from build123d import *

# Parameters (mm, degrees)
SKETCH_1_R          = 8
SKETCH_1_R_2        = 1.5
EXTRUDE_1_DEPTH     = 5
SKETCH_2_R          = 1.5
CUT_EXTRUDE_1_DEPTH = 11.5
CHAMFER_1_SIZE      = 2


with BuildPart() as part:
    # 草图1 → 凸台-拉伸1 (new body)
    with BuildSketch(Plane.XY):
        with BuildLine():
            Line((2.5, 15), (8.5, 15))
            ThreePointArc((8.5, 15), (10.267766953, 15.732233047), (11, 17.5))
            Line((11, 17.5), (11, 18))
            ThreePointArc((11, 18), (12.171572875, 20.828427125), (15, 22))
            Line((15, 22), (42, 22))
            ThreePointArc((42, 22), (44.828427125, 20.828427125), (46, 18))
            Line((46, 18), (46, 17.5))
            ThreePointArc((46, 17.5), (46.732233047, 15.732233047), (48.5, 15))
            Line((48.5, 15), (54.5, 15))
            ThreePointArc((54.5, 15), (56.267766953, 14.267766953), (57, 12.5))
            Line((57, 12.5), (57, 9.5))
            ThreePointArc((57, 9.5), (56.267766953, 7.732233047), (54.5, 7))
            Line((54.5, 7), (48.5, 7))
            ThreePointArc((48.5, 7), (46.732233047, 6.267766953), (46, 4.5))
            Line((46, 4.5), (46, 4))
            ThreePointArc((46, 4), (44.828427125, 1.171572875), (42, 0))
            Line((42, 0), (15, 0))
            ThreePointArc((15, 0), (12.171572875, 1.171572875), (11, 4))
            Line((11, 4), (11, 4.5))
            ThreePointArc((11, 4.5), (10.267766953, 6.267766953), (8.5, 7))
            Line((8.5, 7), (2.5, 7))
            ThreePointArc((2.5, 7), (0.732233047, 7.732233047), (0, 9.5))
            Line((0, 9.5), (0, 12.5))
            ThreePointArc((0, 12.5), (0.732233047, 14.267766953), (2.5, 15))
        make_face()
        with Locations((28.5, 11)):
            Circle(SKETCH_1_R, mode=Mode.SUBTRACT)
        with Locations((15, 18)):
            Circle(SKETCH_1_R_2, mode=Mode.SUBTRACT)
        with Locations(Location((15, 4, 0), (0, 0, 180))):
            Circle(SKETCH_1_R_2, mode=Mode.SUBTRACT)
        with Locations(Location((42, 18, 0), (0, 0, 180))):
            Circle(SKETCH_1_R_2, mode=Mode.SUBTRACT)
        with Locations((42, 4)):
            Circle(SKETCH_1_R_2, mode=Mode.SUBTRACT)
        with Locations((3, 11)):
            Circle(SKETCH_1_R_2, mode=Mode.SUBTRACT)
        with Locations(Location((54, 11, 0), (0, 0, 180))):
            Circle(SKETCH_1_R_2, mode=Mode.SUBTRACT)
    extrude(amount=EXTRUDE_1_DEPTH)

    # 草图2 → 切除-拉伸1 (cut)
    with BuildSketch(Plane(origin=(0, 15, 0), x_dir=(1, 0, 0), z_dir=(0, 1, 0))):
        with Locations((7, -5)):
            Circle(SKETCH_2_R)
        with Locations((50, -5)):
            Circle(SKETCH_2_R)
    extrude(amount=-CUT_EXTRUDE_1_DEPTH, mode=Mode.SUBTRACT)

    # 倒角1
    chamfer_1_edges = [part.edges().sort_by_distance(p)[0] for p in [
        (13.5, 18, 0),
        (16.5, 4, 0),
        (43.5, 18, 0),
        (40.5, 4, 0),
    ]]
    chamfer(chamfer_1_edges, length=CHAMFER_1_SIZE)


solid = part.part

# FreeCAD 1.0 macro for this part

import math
import FreeCAD as App
import Part
import Sketcher
Q = App.Units.Quantity


def edges_at(feature, points):
    """Names of the edges that pass closest to the given points."""
    edges = feature.Shape.Edges
    near = lambda p: min(range(len(edges)), key=lambda i: edges[i].distToShape(Part.Vertex(*p))[0])
    return sorted({f"Edge{near(p) + 1}" for p in points})

doc = App.newDocument("Part")
params = doc.addObject("Spreadsheet::Sheet", "Params")
for row, (alias, value) in enumerate([
    ("sketch1_diameter", "3 mm"),
    ("sketch1_diameter2", "16 mm"),
    ("sketch1_radius", "4 mm"),
    ("sketch1_radius2", "2.5 mm"),
    ("sketch1_width", "6 mm"),
    ("pad1_length", "5 mm"),
    ("sketch2_diameter", "3 mm"),
    ("pocket1_length", "11.5 mm"),
    ("chamfer_size", "2 mm"),
], start=1):
    params.set(f"A{row}", alias)
    params.set(f"B{row}", "=" + value)
    params.setAlias(f"B{row}", alias)

body = doc.addObject("PartDesign::Body", "Body")

sketch1 = body.newObject("Sketcher::SketchObject", "Sketch")
sketch1.AttachmentSupport = (doc.getObject("XY_Plane"), [""])
sketch1.MapMode = "FlatFace"
sketch1.addGeometry([
    Part.LineSegment(App.Vector(8.5, 15, 0), App.Vector(2.5, 15, 0)),
    Part.ArcOfCircle(Part.Circle(App.Vector(2.5, 12.5, 0), App.Vector(0, 0, 1), 2.5), math.radians(90), math.radians(180)),
    Part.LineSegment(App.Vector(0, 12.5, 0), App.Vector(0, 9.5, 0)),
    Part.ArcOfCircle(Part.Circle(App.Vector(2.5, 9.5, 0), App.Vector(0, 0, 1), 2.5), math.radians(180), math.radians(270)),
    Part.LineSegment(App.Vector(2.5, 7, 0), App.Vector(8.5, 7, 0)),
    Part.ArcOfCircle(Part.Circle(App.Vector(8.5, 4.5, 0), App.Vector(0, 0, 1), 2.5), math.radians(0), math.radians(90)),
    Part.LineSegment(App.Vector(11, 4.5, 0), App.Vector(11, 4, 0)),
    Part.ArcOfCircle(Part.Circle(App.Vector(15, 4, 0), App.Vector(0, 0, 1), 4), math.radians(180), math.radians(270)),
    Part.LineSegment(App.Vector(15, 0, 0), App.Vector(42, 0, 0)),
    Part.ArcOfCircle(Part.Circle(App.Vector(42, 4, 0), App.Vector(0, 0, 1), 4), math.radians(-90), math.radians(0)),
    Part.LineSegment(App.Vector(46, 4, 0), App.Vector(46, 4.5, 0)),
    Part.ArcOfCircle(Part.Circle(App.Vector(48.5, 4.5, 0), App.Vector(0, 0, 1), 2.5), math.radians(90), math.radians(180)),
    Part.LineSegment(App.Vector(48.5, 7, 0), App.Vector(54.5, 7, 0)),
    Part.ArcOfCircle(Part.Circle(App.Vector(54.5, 9.5, 0), App.Vector(0, 0, 1), 2.5), math.radians(-90), math.radians(0)),
    Part.LineSegment(App.Vector(57, 9.5, 0), App.Vector(57, 12.5, 0)),
    Part.ArcOfCircle(Part.Circle(App.Vector(54.5, 12.5, 0), App.Vector(0, 0, 1), 2.5), math.radians(0), math.radians(90)),
    Part.LineSegment(App.Vector(54.5, 15, 0), App.Vector(48.5, 15, 0)),
    Part.ArcOfCircle(Part.Circle(App.Vector(48.5, 17.5, 0), App.Vector(0, 0, 1), 2.5), math.radians(180), math.radians(270)),
    Part.LineSegment(App.Vector(46, 17.5, 0), App.Vector(46, 18, 0)),
    Part.ArcOfCircle(Part.Circle(App.Vector(42, 18, 0), App.Vector(0, 0, 1), 4), math.radians(0), math.radians(90)),
    Part.LineSegment(App.Vector(42, 22, 0), App.Vector(15, 22, 0)),
    Part.ArcOfCircle(Part.Circle(App.Vector(15, 18, 0), App.Vector(0, 0, 1), 4), math.radians(90), math.radians(180)),
    Part.LineSegment(App.Vector(11, 18, 0), App.Vector(11, 17.5, 0)),
    Part.ArcOfCircle(Part.Circle(App.Vector(8.5, 17.5, 0), App.Vector(0, 0, 1), 2.5), math.radians(-90), math.radians(0)),
    Part.Circle(App.Vector(42, 4, 0), App.Vector(0, 0, 1), 1.5),
    Part.Circle(App.Vector(15, 4, 0), App.Vector(0, 0, 1), 1.5),
    Part.Circle(App.Vector(54, 11, 0), App.Vector(0, 0, 1), 1.5),
    Part.Circle(App.Vector(42, 18, 0), App.Vector(0, 0, 1), 1.5),
    Part.Circle(App.Vector(28.5, 11, 0), App.Vector(0, 0, 1), 8),
    Part.Circle(App.Vector(3, 11, 0), App.Vector(0, 0, 1), 1.5),
    Part.Circle(App.Vector(15, 18, 0), App.Vector(0, 0, 1), 1.5),
], False)
sketch1.addConstraint([
    Sketcher.Constraint("Tangent", 0, 2, 1, 1),
    Sketcher.Constraint("Tangent", 1, 2, 2, 1),
    Sketcher.Constraint("Tangent", 2, 2, 3, 1),
    Sketcher.Constraint("Tangent", 3, 2, 4, 1),
    Sketcher.Constraint("Tangent", 4, 2, 5, 2),
    Sketcher.Constraint("Tangent", 5, 1, 6, 1),
    Sketcher.Constraint("Tangent", 6, 2, 7, 1),
    Sketcher.Constraint("Tangent", 7, 2, 8, 1),
    Sketcher.Constraint("Tangent", 8, 2, 9, 1),
    Sketcher.Constraint("Tangent", 9, 2, 10, 1),
    Sketcher.Constraint("Tangent", 10, 2, 11, 2),
    Sketcher.Constraint("Tangent", 11, 1, 12, 1),
    Sketcher.Constraint("Tangent", 12, 2, 13, 1),
    Sketcher.Constraint("Tangent", 13, 2, 14, 1),
    Sketcher.Constraint("Tangent", 14, 2, 15, 1),
    Sketcher.Constraint("Tangent", 15, 2, 16, 1),
    Sketcher.Constraint("Tangent", 16, 2, 17, 2),
    Sketcher.Constraint("Tangent", 17, 1, 18, 1),
    Sketcher.Constraint("Tangent", 18, 2, 19, 1),
    Sketcher.Constraint("Tangent", 19, 2, 20, 1),
    Sketcher.Constraint("Tangent", 20, 2, 21, 1),
    Sketcher.Constraint("Tangent", 21, 2, 22, 1),
    Sketcher.Constraint("Tangent", 22, 2, 23, 2),
    Sketcher.Constraint("Tangent", 23, 1, 0, 1),
    Sketcher.Constraint("Horizontal", 0),
    Sketcher.Constraint("Vertical", 2),
    Sketcher.Constraint("Horizontal", 4),
    Sketcher.Constraint("Vertical", 6),
    Sketcher.Constraint("Horizontal", 8),
    Sketcher.Constraint("Vertical", 10),
    Sketcher.Constraint("Horizontal", 12),
    Sketcher.Constraint("Vertical", 14),
    Sketcher.Constraint("Horizontal", 16),
    Sketcher.Constraint("Vertical", 18),
    Sketcher.Constraint("Horizontal", 20),
    Sketcher.Constraint("Vertical", 22),
    Sketcher.Constraint("Coincident", 24, 3, 9, 3),
    Sketcher.Constraint("Coincident", 25, 3, 7, 3),
    Sketcher.Constraint("Coincident", 27, 3, 19, 3),
    Sketcher.Constraint("Coincident", 30, 3, 21, 3),
    Sketcher.Constraint("Equal", 1, 3),
    Sketcher.Constraint("Equal", 3, 5),
    Sketcher.Constraint("Equal", 7, 9),
    Sketcher.Constraint("Equal", 5, 11),
    Sketcher.Constraint("Equal", 11, 13),
    Sketcher.Constraint("Equal", 13, 15),
    Sketcher.Constraint("Equal", 15, 17),
    Sketcher.Constraint("Equal", 9, 19),
    Sketcher.Constraint("Equal", 19, 21),
    Sketcher.Constraint("Equal", 17, 23),
    Sketcher.Constraint("Equal", 24, 25),
    Sketcher.Constraint("Equal", 25, 26),
    Sketcher.Constraint("Equal", 26, 27),
    Sketcher.Constraint("Equal", 27, 29),
    Sketcher.Constraint("Equal", 29, 30),
    Sketcher.Constraint("PointOnObject", 1, 2, -2),
    Sketcher.Constraint("PointOnObject", 7, 2, -1),
    Sketcher.Constraint("Horizontal", 5, 3, 11, 3),
    Sketcher.Constraint("Horizontal", 1, 3, 15, 3),
    Sketcher.Constraint("Horizontal", 26, 3, 28, 3),
    Sketcher.Constraint("Horizontal", 28, 3, 29, 3),
    Sketcher.Constraint("Vertical", 11, 3, 17, 3),
    Sketcher.Constraint("Vertical", 7, 3, 21, 3),
    Sketcher.Constraint("Equal", 4, 12),
    Sketcher.Constraint("Equal", 10, 18),
    Sketcher.Constraint("Diameter", 24, Q("3 mm")),
    Sketcher.Constraint("Diameter", 28, Q("16 mm")),
    Sketcher.Constraint("Radius", 7, Q("4 mm")),
    Sketcher.Constraint("Radius", 1, Q("2.5 mm")),
    Sketcher.Constraint("DistanceX", 0, 2, 0, 1, Q("6 mm")),
    Sketcher.Constraint("DistanceX", 8, 1, 8, 2, Q("27 mm")),
    Sketcher.Constraint("DistanceY", 2, 2, 2, 1, Q("3 mm")),
    Sketcher.Constraint("DistanceY", 6, 2, 6, 1, Q("0.5 mm")),
    Sketcher.Constraint("DistanceX", -1, 1, 26, 3, Q("54 mm")),
    Sketcher.Constraint("DistanceY", -1, 1, 26, 3, Q("11 mm")),
    Sketcher.Constraint("DistanceX", -1, 1, 29, 3, Q("3 mm")),
    Sketcher.Constraint("DistanceX", -1, 1, 28, 3, Q("28.5 mm")),
])
sketch1.setExpression("Constraints[65]", "Params.sketch1_diameter")
sketch1.setExpression("Constraints[66]", "Params.sketch1_diameter2")
sketch1.setExpression("Constraints[67]", "Params.sketch1_radius")
sketch1.setExpression("Constraints[68]", "Params.sketch1_radius2")
sketch1.setExpression("Constraints[69]", "Params.sketch1_width")
pad1 = body.newObject("PartDesign::Pad", "Pad")
pad1.Profile = sketch1
pad1.setExpression("Length", "Params.pad1_length")

sketch2 = body.newObject("Sketcher::SketchObject", "Sketch001")
sketch2.AttachmentSupport = (doc.getObject("XZ_Plane"), [""])
sketch2.MapMode = "FlatFace"
sketch2.AttachmentOffset = App.Placement(App.Vector(0, 0, -15), App.Rotation())
sketch2.addGeometry([
    Part.Circle(App.Vector(7, 5, 0), App.Vector(0, 0, 1), 1.5),
    Part.Circle(App.Vector(50, 5, 0), App.Vector(0, 0, 1), 1.5),
], False)
sketch2.addConstraint([
    Sketcher.Constraint("Equal", 0, 1),
    Sketcher.Constraint("Horizontal", 0, 3, 1, 3),
    Sketcher.Constraint("Diameter", 0, Q("3 mm")),
    Sketcher.Constraint("DistanceX", -1, 1, 0, 3, Q("7 mm")),
    Sketcher.Constraint("DistanceY", -1, 1, 0, 3, Q("5 mm")),
    Sketcher.Constraint("DistanceX", -1, 1, 1, 3, Q("50 mm")),
])
sketch2.setExpression("Constraints[2]", "Params.sketch2_diameter")
pocket1 = body.newObject("PartDesign::Pocket", "Pocket")
pocket1.Profile = sketch2
pocket1.setExpression("Length", "Params.pocket1_length")
pocket1.Reversed = True
doc.recompute()

chamfer = body.newObject("PartDesign::Chamfer", "Chamfer")
chamfer.Base = (pocket1, edges_at(pocket1, [
    (13.5, 18, 0),
    (16.5, 4, 0),
    (43.5, 18, 0),
    (40.5, 4, 0),
]))
chamfer.setExpression("Size", "Params.chamfer_size")

doc.recompute()
